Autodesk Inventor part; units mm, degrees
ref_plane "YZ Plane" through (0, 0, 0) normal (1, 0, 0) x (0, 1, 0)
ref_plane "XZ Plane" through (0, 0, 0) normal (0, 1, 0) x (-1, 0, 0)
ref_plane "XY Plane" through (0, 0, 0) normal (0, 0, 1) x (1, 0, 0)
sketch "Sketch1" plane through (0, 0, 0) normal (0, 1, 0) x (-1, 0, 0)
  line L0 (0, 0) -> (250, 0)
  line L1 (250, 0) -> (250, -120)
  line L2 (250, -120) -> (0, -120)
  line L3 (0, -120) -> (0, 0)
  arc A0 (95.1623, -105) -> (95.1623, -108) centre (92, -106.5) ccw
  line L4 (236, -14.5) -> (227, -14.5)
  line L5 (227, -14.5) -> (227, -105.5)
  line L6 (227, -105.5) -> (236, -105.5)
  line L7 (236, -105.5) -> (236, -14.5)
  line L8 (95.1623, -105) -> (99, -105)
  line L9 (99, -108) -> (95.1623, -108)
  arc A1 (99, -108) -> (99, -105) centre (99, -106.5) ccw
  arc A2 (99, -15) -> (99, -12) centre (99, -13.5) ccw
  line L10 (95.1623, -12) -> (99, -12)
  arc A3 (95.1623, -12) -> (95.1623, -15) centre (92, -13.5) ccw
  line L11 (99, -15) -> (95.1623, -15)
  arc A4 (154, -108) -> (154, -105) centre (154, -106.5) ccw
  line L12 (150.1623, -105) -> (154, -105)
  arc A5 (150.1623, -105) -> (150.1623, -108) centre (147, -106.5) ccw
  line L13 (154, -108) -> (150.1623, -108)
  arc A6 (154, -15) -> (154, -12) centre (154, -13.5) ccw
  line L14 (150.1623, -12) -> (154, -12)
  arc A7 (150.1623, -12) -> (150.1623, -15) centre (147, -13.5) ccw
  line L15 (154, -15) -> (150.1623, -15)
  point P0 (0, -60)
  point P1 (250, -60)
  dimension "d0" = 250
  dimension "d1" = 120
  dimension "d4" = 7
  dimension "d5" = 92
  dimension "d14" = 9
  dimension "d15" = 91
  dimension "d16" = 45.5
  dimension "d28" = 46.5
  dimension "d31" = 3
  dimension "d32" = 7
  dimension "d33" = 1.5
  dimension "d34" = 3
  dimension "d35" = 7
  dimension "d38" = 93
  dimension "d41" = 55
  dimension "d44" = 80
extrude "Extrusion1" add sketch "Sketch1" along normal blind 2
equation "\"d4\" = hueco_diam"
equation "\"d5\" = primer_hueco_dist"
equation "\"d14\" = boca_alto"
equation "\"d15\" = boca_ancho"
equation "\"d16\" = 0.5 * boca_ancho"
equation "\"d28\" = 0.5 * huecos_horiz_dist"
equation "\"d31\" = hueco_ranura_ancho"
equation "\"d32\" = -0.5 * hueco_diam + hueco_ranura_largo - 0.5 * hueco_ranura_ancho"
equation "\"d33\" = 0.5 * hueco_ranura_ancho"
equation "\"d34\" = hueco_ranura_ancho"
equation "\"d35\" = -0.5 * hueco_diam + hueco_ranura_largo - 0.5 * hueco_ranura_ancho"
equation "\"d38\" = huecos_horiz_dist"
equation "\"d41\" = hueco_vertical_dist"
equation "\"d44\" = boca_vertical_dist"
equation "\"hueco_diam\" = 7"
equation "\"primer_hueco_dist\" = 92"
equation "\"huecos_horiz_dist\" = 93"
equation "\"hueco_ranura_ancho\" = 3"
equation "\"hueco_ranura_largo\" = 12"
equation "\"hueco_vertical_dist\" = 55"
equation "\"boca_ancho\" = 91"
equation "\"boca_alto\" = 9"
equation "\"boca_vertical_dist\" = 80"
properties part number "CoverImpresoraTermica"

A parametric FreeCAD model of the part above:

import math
import FreeCAD as App
import Part
import Sketcher
from FreeCAD import Vector
Q = App.Units.Quantity


def add_polygon(sketch, points):
    """Adds a closed chain of lines whose ends are joined by coincident constraints."""
    first, n = sketch.GeometryCount, len(points)
    for a, b in zip(points, points[1:] + points[:1]):
        sketch.addGeometry(Part.LineSegment(App.Vector(*a, 0), App.Vector(*b, 0)), False)
    for i in range(n):
        sketch.addConstraint(Sketcher.Constraint("Coincident", first + i, 2, first + (i + 1) % n, 1))

doc = App.newDocument("Part")
body = doc.addObject("PartDesign::Body", "Body")

sketch1 = body.newObject("Sketcher::SketchObject", "Sketch")
sketch1.AttachmentSupport = (doc.getObject("XZ_Plane"), [""])
sketch1.MapMode = "FlatFace"
add_polygon(sketch1, [(-250, 0), (0, 0), (0, -120), (-250, -120)])
sketch1.addGeometry(Part.ArcOfCircle(Part.Circle(Vector(-92, -106.5, 0), Vector(0, 0, 1), 3.50002), math.radians(-154.623223), math.radians(154.623223)), False)
sketch1.addGeometry(Part.LineSegment(Vector(-95.1623, -105, 0), Vector(-99, -105, 0)), False)
sketch1.addGeometry(Part.ArcOfCircle(Part.Circle(Vector(-99, -106.5, 0), Vector(0, 0, 1), 1.5), math.radians(90), math.radians(270)), False)
sketch1.addGeometry(Part.LineSegment(Vector(-99, -108, 0), Vector(-95.1623, -108, 0)), False)
sketch1.addGeometry(Part.ArcOfCircle(Part.Circle(Vector(-154, -106.5, 0), Vector(0, 0, 1), 1.5), math.radians(90), math.radians(270)), False)
sketch1.addGeometry(Part.LineSegment(Vector(-154, -108, 0), Vector(-150.1623, -108, 0)), False)
sketch1.addGeometry(Part.ArcOfCircle(Part.Circle(Vector(-147, -106.5, 0), Vector(0, 0, 1), 3.50002), math.radians(-154.623223), math.radians(154.623223)), False)
sketch1.addGeometry(Part.LineSegment(Vector(-150.1623, -105, 0), Vector(-154, -105, 0)), False)
sketch1.addGeometry(Part.ArcOfCircle(Part.Circle(Vector(-99, -13.5, 0), Vector(0, 0, 1), 1.5), math.radians(90), math.radians(270)), False)
sketch1.addGeometry(Part.LineSegment(Vector(-99, -15, 0), Vector(-95.1623, -15, 0)), False)
sketch1.addGeometry(Part.ArcOfCircle(Part.Circle(Vector(-92, -13.5, 0), Vector(0, 0, 1), 3.50002), math.radians(-154.623223), math.radians(154.623223)), False)
sketch1.addGeometry(Part.LineSegment(Vector(-95.1623, -12, 0), Vector(-99, -12, 0)), False)
add_polygon(sketch1, [(-227, -14.5), (-236, -14.5), (-236, -105.5), (-227, -105.5)])
sketch1.addGeometry(Part.ArcOfCircle(Part.Circle(Vector(-154, -13.5, 0), Vector(0, 0, 1), 1.5), math.radians(90), math.radians(270)), False)
sketch1.addGeometry(Part.LineSegment(Vector(-154, -15, 0), Vector(-150.1623, -15, 0)), False)
sketch1.addGeometry(Part.ArcOfCircle(Part.Circle(Vector(-147, -13.5, 0), Vector(0, 0, 1), 3.50002), math.radians(-154.623223), math.radians(154.623223)), False)
sketch1.addGeometry(Part.LineSegment(Vector(-150.1623, -12, 0), Vector(-154, -12, 0)), False)
sketch1.addConstraint([
    Sketcher.Constraint("Coincident", 4, 2, 5, 1),
    Sketcher.Constraint("Tangent", 5, 2, 6, 1),
    Sketcher.Constraint("Tangent", 6, 2, 7, 1),
    Sketcher.Constraint("Coincident", 7, 2, 4, 1),
    Sketcher.Constraint("Tangent", 8, 2, 9, 1),
    Sketcher.Constraint("Coincident", 9, 2, 10, 1),
    Sketcher.Constraint("Coincident", 10, 2, 11, 1),
    Sketcher.Constraint("Tangent", 11, 2, 8, 1),
    Sketcher.Constraint("Tangent", 12, 2, 13, 1),
    Sketcher.Constraint("Coincident", 13, 2, 14, 1),
    Sketcher.Constraint("Coincident", 14, 2, 15, 1),
    Sketcher.Constraint("Tangent", 15, 2, 12, 1),
    Sketcher.Constraint("Tangent", 20, 2, 21, 1),
    Sketcher.Constraint("Coincident", 21, 2, 22, 1),
    Sketcher.Constraint("Coincident", 22, 2, 23, 1),
    Sketcher.Constraint("Tangent", 23, 2, 20, 1),
    Sketcher.Constraint("Horizontal", 0),
    Sketcher.Constraint("Vertical", 1),
    Sketcher.Constraint("Horizontal", 2),
    Sketcher.Constraint("Vertical", 3),
    Sketcher.Constraint("Horizontal", 5),
    Sketcher.Constraint("Horizontal", 7),
    Sketcher.Constraint("Horizontal", 9),
    Sketcher.Constraint("Horizontal", 11),
    Sketcher.Constraint("Horizontal", 13),
    Sketcher.Constraint("Horizontal", 15),
    Sketcher.Constraint("Horizontal", 16),
    Sketcher.Constraint("Vertical", 17),
    Sketcher.Constraint("Horizontal", 18),
    Sketcher.Constraint("Vertical", 19),
    Sketcher.Constraint("Horizontal", 21),
    Sketcher.Constraint("Horizontal", 23),
    Sketcher.Constraint("Coincident", 0, 2, -1, 1),
    Sketcher.Constraint("Equal", 6, 8),
    Sketcher.Constraint("Equal", 4, 10),
    Sketcher.Constraint("Equal", 8, 12),
    Sketcher.Constraint("Equal", 10, 14),
    Sketcher.Constraint("Equal", 12, 20),
    Sketcher.Constraint("Equal", 14, 22),
    Sketcher.Constraint("Horizontal", 4, 3, 6, 3),
    Sketcher.Constraint("Horizontal", 6, 3, 8, 3),
    Sketcher.Constraint("Horizontal", 8, 3, 10, 3),
    Sketcher.Constraint("Horizontal", 12, 3, 14, 3),
    Sketcher.Constraint("Horizontal", 14, 3, 20, 3),
    Sketcher.Constraint("Horizontal", 20, 3, 22, 3),
    Sketcher.Constraint("Vertical", 6, 3, 12, 3),
    Sketcher.Constraint("Vertical", 4, 3, 14, 3),
    Sketcher.Constraint("Vertical", 8, 3, 20, 3),
    Sketcher.Constraint("Vertical", 10, 3, 22, 3),
    Sketcher.Constraint("Equal", 7, 9),
    Sketcher.Constraint("Radius", 4, Q("3.5 mm")),
    Sketcher.Constraint("Radius", 6, Q("1.5 mm")),
    Sketcher.Constraint("DistanceX", 0, 1, 0, 2, Q("250 mm")),
    Sketcher.Constraint("DistanceX", 16, 2, 16, 1, Q("9 mm")),
    Sketcher.Constraint("DistanceY", 1, 2, 1, 1, Q("120 mm")),
    Sketcher.Constraint("DistanceY", 17, 2, 17, 1, Q("91 mm")),
    Sketcher.Constraint("DistanceX", 4, 3, -1, 1, Q("92 mm")),
    Sketcher.Constraint("DistanceX", 6, 3, 4, 3, Q("7 mm")),
    Sketcher.Constraint("DistanceX", 8, 3, 6, 3, Q("55 mm")),
    Sketcher.Constraint("DistanceY", 6, 3, 12, 3, Q("93 mm")),
    Sketcher.Constraint("DistanceX", 19, 2, 22, 3, Q("80 mm")),
    Sketcher.Constraint("DistanceY", 4, 2, -1, 1, Q("105 mm")),
    Sketcher.Constraint("DistanceY", 16, 2, 20, 3, Q("1 mm")),
])
pad1 = body.newObject("PartDesign::Pad", "Pad")
pad1.Profile = sketch1
pad1.Length = 2
pad1.Reversed = True

doc.recompute()
